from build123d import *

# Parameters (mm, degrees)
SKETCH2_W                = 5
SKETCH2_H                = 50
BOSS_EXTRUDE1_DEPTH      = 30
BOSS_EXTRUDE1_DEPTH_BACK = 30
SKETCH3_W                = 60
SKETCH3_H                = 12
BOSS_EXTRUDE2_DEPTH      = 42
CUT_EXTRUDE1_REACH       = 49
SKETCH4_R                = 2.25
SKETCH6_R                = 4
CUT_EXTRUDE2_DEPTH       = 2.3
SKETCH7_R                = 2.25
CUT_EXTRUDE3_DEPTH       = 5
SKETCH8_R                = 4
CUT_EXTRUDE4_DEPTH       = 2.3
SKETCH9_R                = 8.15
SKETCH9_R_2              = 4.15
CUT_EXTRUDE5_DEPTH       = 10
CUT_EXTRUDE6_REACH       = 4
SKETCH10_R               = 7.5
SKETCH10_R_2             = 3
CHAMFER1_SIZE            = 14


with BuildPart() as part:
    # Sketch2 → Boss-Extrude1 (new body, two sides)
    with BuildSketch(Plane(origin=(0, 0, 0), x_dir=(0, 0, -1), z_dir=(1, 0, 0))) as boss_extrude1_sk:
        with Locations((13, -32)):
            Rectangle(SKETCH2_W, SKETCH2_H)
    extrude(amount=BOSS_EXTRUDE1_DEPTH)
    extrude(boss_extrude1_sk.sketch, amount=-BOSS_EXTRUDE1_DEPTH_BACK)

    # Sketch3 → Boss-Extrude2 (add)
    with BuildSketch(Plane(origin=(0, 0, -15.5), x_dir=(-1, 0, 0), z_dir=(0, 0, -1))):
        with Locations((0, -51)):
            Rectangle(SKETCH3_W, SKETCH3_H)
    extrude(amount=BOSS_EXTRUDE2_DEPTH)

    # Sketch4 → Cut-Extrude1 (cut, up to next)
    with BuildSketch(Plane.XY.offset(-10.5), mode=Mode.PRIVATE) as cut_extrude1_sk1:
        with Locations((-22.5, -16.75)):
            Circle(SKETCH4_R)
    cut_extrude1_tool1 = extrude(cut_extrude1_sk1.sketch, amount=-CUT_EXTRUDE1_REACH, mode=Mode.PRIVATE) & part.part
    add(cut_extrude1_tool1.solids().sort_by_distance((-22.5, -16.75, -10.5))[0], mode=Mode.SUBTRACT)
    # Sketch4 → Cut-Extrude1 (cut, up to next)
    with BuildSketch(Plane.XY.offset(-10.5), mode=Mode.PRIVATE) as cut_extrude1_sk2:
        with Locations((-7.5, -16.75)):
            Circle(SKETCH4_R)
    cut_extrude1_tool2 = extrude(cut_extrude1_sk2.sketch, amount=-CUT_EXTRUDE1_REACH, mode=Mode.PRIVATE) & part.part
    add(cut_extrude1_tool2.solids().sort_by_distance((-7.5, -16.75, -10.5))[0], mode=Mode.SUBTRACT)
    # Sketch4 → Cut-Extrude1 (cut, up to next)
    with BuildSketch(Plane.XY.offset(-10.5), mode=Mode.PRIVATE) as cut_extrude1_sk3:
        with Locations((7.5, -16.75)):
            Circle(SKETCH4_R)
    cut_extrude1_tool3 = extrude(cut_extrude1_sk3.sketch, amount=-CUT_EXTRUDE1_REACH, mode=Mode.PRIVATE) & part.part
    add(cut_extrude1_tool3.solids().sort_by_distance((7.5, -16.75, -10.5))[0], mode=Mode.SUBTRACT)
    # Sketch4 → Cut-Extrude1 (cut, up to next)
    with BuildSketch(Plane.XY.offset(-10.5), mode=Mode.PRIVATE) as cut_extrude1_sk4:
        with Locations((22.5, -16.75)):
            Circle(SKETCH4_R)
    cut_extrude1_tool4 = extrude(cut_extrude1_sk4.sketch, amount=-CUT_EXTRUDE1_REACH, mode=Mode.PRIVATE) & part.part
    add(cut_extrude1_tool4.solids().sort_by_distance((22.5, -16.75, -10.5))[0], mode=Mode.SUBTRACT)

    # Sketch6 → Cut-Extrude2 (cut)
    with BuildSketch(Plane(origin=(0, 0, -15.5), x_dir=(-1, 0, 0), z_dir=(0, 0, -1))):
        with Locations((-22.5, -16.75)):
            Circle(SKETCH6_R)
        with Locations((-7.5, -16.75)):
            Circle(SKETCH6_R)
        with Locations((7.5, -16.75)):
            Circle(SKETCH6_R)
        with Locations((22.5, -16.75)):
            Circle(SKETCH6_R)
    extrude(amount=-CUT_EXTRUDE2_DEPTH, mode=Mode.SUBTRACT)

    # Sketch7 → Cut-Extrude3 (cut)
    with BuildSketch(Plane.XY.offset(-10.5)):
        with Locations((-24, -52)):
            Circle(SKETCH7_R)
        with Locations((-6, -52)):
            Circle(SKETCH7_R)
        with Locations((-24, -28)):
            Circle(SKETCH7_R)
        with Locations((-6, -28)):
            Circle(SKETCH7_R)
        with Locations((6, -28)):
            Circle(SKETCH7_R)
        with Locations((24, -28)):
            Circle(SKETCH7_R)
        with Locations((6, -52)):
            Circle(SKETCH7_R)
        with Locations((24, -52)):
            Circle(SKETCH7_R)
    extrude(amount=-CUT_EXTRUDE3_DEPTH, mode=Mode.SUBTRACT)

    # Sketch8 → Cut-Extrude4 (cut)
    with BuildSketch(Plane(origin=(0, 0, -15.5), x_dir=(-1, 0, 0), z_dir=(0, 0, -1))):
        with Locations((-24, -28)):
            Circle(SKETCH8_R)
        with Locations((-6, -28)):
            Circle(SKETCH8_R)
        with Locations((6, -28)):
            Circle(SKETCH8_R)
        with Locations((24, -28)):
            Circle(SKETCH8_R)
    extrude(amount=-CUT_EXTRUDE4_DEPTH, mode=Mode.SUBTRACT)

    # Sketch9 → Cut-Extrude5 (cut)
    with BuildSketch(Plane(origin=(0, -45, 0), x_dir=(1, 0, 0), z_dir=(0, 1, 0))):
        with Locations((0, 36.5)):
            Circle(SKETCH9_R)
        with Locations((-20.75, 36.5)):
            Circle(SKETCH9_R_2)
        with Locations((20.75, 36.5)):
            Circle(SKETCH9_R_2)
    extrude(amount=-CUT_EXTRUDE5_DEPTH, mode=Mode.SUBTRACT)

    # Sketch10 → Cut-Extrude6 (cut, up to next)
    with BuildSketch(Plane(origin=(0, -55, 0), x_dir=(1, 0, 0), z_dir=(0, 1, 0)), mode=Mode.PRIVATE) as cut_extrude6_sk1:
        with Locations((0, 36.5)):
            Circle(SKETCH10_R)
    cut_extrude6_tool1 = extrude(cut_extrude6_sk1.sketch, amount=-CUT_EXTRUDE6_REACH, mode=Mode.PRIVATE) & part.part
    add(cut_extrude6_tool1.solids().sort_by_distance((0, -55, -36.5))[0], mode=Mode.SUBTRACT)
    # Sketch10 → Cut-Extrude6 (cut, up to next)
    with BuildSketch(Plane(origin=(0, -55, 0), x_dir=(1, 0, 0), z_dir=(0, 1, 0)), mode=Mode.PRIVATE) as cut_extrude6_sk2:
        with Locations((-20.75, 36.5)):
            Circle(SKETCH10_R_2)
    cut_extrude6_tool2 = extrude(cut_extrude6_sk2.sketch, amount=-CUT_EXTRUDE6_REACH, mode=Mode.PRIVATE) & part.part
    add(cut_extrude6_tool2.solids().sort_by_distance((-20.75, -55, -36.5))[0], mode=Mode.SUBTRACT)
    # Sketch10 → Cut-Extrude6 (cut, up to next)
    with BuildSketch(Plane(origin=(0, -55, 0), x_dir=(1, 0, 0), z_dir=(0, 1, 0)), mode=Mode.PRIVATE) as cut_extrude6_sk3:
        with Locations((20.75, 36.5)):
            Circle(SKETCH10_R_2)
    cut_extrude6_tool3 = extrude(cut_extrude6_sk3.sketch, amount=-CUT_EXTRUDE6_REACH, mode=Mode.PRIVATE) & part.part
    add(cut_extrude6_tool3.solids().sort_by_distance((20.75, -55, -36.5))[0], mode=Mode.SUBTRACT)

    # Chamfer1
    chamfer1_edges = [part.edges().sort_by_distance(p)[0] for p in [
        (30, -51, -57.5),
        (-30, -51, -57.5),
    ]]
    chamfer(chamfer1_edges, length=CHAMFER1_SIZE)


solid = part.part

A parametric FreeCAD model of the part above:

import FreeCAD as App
import Part
import Sketcher


def edges_at(feature, points):
    """Names of the edges that pass closest to the given points."""
    edges = feature.Shape.Edges
    near = lambda p: min(range(len(edges)), key=lambda i: edges[i].distToShape(Part.Vertex(*p))[0])
    return sorted({f"Edge{near(p) + 1}" for p in points})


def add_polygon(sketch, points):
    """Adds a closed chain of lines whose ends are joined by coincident constraints."""
    first, n = sketch.GeometryCount, len(points)
    for a, b in zip(points, points[1:] + points[:1]):
        sketch.addGeometry(Part.LineSegment(App.Vector(*a, 0), App.Vector(*b, 0)), False)
    for i in range(n):
        sketch.addConstraint(Sketcher.Constraint("Coincident", first + i, 2, first + (i + 1) % n, 1))

doc = App.newDocument("Part")
body = doc.addObject("PartDesign::Body", "Body")

sketch1 = body.newObject("Sketcher::SketchObject", "Sketch")
sketch1.AttachmentSupport = (doc.getObject("YZ_Plane"), [""])
sketch1.MapMode = "FlatFace"
add_polygon(sketch1, [(-7, -10), (-57, -10), (-57, -16), (-7, -16)])
sketch1.addConstraint(Sketcher.Constraint("Horizontal", 0))
sketch1.addConstraint(Sketcher.Constraint("Vertical", 1))
sketch1.addConstraint(Sketcher.Constraint("Horizontal", 2))
sketch1.addConstraint(Sketcher.Constraint("Vertical", 3))
sketch1.addConstraint(Sketcher.Constraint("DistanceX", 0, 2, 0, 1, 50.0))
sketch1.addConstraint(Sketcher.Constraint("DistanceY", 1, 2, 1, 1, 5.0))
sketch1.addConstraint(Sketcher.Constraint("DistanceX", 0, 2, -1, 1, 57.0))
sketch1.addConstraint(Sketcher.Constraint("DistanceY", 0, 2, -1, 1, 10.5))
pad1 = body.newObject("PartDesign::Pad", "Pad")
pad1.Profile = sketch1
pad1.Type = "TwoLengths"
pad1.Length = 30
pad1.Length2 = 30

sketch2 = body.newObject("Sketcher::SketchObject", "Sketch001")
sketch2.AttachmentSupport = (doc.getObject("XY_Plane"), [""])
sketch2.MapMode = "FlatFace"
sketch2.AttachmentOffset = App.Placement(App.Vector(0, 0, -15.5), App.Rotation())
add_polygon(sketch2, [(30, -45), (30, -57), (-30, -57), (-30, -45)])
sketch2.addConstraint(Sketcher.Constraint("Vertical", 0))
sketch2.addConstraint(Sketcher.Constraint("Horizontal", 1))
sketch2.addConstraint(Sketcher.Constraint("Vertical", 2))
sketch2.addConstraint(Sketcher.Constraint("Horizontal", 3))
sketch2.addConstraint(Sketcher.Constraint("DistanceX", 1, 2, 1, 1, 60.0))
sketch2.addConstraint(Sketcher.Constraint("DistanceY", 0, 2, 0, 1, 12.0))
sketch2.addConstraint(Sketcher.Constraint("DistanceX", -1, 1, 0, 2, 30.0))
sketch2.addConstraint(Sketcher.Constraint("DistanceY", 0, 2, -1, 1, 57.0))
pad2 = body.newObject("PartDesign::Pad", "Pad001")
pad2.Profile = sketch2
pad2.Length = 42
pad2.Reversed = True

sketch3 = body.newObject("Sketcher::SketchObject", "Sketch002")
sketch3.AttachmentSupport = (doc.getObject("XY_Plane"), [""])
sketch3.MapMode = "FlatFace"
sketch3.AttachmentOffset = App.Placement(App.Vector(0, 0, -10.5), App.Rotation())
sketch3.addGeometry(Part.Circle(App.Vector(-22.5, -16.8, 0), App.Vector(0, 0, 1), 2.2), False)
sketch3.addConstraint(Sketcher.Constraint("Diameter", 0, 4.5))
sketch3.addConstraint(Sketcher.Constraint("DistanceX", 0, 3, -1, 1, 22.5))
sketch3.addConstraint(Sketcher.Constraint("DistanceY", 0, 3, -1, 1, 16.75))
pocket1 = body.newObject("PartDesign::Pocket", "Pocket")
pocket1.Profile = sketch3
pocket1.Type = "UpToFirst"

sketch4 = body.newObject("Sketcher::SketchObject", "Sketch003")
sketch4.AttachmentSupport = (doc.getObject("XY_Plane"), [""])
sketch4.MapMode = "FlatFace"
sketch4.AttachmentOffset = App.Placement(App.Vector(0, 0, -10.5), App.Rotation())
sketch4.addGeometry(Part.Circle(App.Vector(-7.5, -16.8, 0), App.Vector(0, 0, 1), 2.2), False)
sketch4.addConstraint(Sketcher.Constraint("Diameter", 0, 4.5))
sketch4.addConstraint(Sketcher.Constraint("DistanceX", 0, 3, -1, 1, 7.5))
sketch4.addConstraint(Sketcher.Constraint("DistanceY", 0, 3, -1, 1, 16.75))
pocket2 = body.newObject("PartDesign::Pocket", "Pocket001")
pocket2.Profile = sketch4
pocket2.Type = "UpToFirst"

sketch5 = body.newObject("Sketcher::SketchObject", "Sketch004")
sketch5.AttachmentSupport = (doc.getObject("XY_Plane"), [""])
sketch5.MapMode = "FlatFace"
sketch5.AttachmentOffset = App.Placement(App.Vector(0, 0, -10.5), App.Rotation())
sketch5.addGeometry(Part.Circle(App.Vector(7.5, -16.8, 0), App.Vector(0, 0, 1), 2.2), False)
sketch5.addConstraint(Sketcher.Constraint("Diameter", 0, 4.5))
sketch5.addConstraint(Sketcher.Constraint("DistanceX", -1, 1, 0, 3, 7.5))
sketch5.addConstraint(Sketcher.Constraint("DistanceY", 0, 3, -1, 1, 16.75))
pocket3 = body.newObject("PartDesign::Pocket", "Pocket002")
pocket3.Profile = sketch5
pocket3.Type = "UpToFirst"

sketch6 = body.newObject("Sketcher::SketchObject", "Sketch005")
sketch6.AttachmentSupport = (doc.getObject("XY_Plane"), [""])
sketch6.MapMode = "FlatFace"
sketch6.AttachmentOffset = App.Placement(App.Vector(0, 0, -10.5), App.Rotation())
sketch6.addGeometry(Part.Circle(App.Vector(22.5, -16.8, 0), App.Vector(0, 0, 1), 2.2), False)
sketch6.addConstraint(Sketcher.Constraint("Diameter", 0, 4.5))
sketch6.addConstraint(Sketcher.Constraint("DistanceX", -1, 1, 0, 3, 22.5))
sketch6.addConstraint(Sketcher.Constraint("DistanceY", 0, 3, -1, 1, 16.75))
pocket4 = body.newObject("PartDesign::Pocket", "Pocket003")
pocket4.Profile = sketch6
pocket4.Type = "UpToFirst"

sketch7 = body.newObject("Sketcher::SketchObject", "Sketch006")
sketch7.AttachmentSupport = (doc.getObject("XY_Plane"), [""])
sketch7.MapMode = "FlatFace"
sketch7.AttachmentOffset = App.Placement(App.Vector(0, 0, -15.5), App.Rotation())
sketch7.addGeometry(Part.Circle(App.Vector(22.5, -16.8, 0), App.Vector(0, 0, 1), 4), False)
sketch7.addGeometry(Part.Circle(App.Vector(7.5, -16.8, 0), App.Vector(0, 0, 1), 4), False)
sketch7.addGeometry(Part.Circle(App.Vector(-7.5, -16.8, 0), App.Vector(0, 0, 1), 4), False)
sketch7.addGeometry(Part.Circle(App.Vector(-22.5, -16.8, 0), App.Vector(0, 0, 1), 4), False)
sketch7.addConstraint(Sketcher.Constraint("Equal", 0, 1))
sketch7.addConstraint(Sketcher.Constraint("Equal", 1, 2))
sketch7.addConstraint(Sketcher.Constraint("Equal", 2, 3))
sketch7.addConstraint(Sketcher.Constraint("Symmetric", 1, 3, 2, 3, -2))
sketch7.addConstraint(Sketcher.Constraint("Symmetric", 0, 3, 3, 3, -2))
sketch7.addConstraint(Sketcher.Constraint("Horizontal", 0, 3, 1, 3))
sketch7.addConstraint(Sketcher.Constraint("Diameter", 0, 8.0))
sketch7.addConstraint(Sketcher.Constraint("DistanceX", 1, 3, 0, 3, 15.0))
sketch7.addConstraint(Sketcher.Constraint("DistanceX", 2, 3, 1, 3, 15.0))
sketch7.addConstraint(Sketcher.Constraint("DistanceY", 0, 3, -1, 1, 16.75))
pocket5 = body.newObject("PartDesign::Pocket", "Pocket004")
pocket5.Profile = sketch7
pocket5.Length = 2.3
pocket5.Reversed = True

sketch8 = body.newObject("Sketcher::SketchObject", "Sketch007")
sketch8.AttachmentSupport = (doc.getObject("XY_Plane"), [""])
sketch8.MapMode = "FlatFace"
sketch8.AttachmentOffset = App.Placement(App.Vector(0, 0, -10.5), App.Rotation())
sketch8.addGeometry(Part.Circle(App.Vector(-24, -52, 0), App.Vector(0, 0, 1), 2.2), False)
sketch8.addGeometry(Part.Circle(App.Vector(-6, -52, 0), App.Vector(0, 0, 1), 2.2), False)
sketch8.addGeometry(Part.Circle(App.Vector(-24, -28, 0), App.Vector(0, 0, 1), 2.2), False)
sketch8.addGeometry(Part.Circle(App.Vector(-6, -28, 0), App.Vector(0, 0, 1), 2.2), False)
sketch8.addGeometry(Part.Circle(App.Vector(6, -28, 0), App.Vector(0, 0, 1), 2.2), False)
sketch8.addGeometry(Part.Circle(App.Vector(24, -28, 0), App.Vector(0, 0, 1), 2.2), False)
sketch8.addGeometry(Part.Circle(App.Vector(6, -52, 0), App.Vector(0, 0, 1), 2.2), False)
sketch8.addGeometry(Part.Circle(App.Vector(24, -52, 0), App.Vector(0, 0, 1), 2.2), False)
sketch8.addConstraint(Sketcher.Constraint("Equal", 0, 1))
sketch8.addConstraint(Sketcher.Constraint("Equal", 1, 2))
sketch8.addConstraint(Sketcher.Constraint("Equal", 2, 3))
sketch8.addConstraint(Sketcher.Constraint("Equal", 3, 4))
sketch8.addConstraint(Sketcher.Constraint("Equal", 4, 5))
sketch8.addConstraint(Sketcher.Constraint("Equal", 5, 6))
sketch8.addConstraint(Sketcher.Constraint("Equal", 6, 7))
sketch8.addConstraint(Sketcher.Constraint("Symmetric", 3, 3, 4, 3, -2))
sketch8.addConstraint(Sketcher.Constraint("Symmetric", 2, 3, 5, 3, -2))
sketch8.addConstraint(Sketcher.Constraint("Symmetric", 1, 3, 6, 3, -2))
sketch8.addConstraint(Sketcher.Constraint("Symmetric", 0, 3, 7, 3, -2))
sketch8.addConstraint(Sketcher.Constraint("Horizontal", 0, 3, 1, 3))
sketch8.addConstraint(Sketcher.Constraint("Horizontal", 2, 3, 3, 3))
sketch8.addConstraint(Sketcher.Constraint("Vertical", 0, 3, 2, 3))
sketch8.addConstraint(Sketcher.Constraint("Vertical", 1, 3, 3, 3))
sketch8.addConstraint(Sketcher.Constraint("Diameter", 0, 4.5))
sketch8.addConstraint(Sketcher.Constraint("DistanceX", 0, 3, -1, 1, 24.0))
sketch8.addConstraint(Sketcher.Constraint("DistanceY", 0, 3, -1, 1, 52.0))
sketch8.addConstraint(Sketcher.Constraint("DistanceX", 1, 3, -1, 1, 6.0))
sketch8.addConstraint(Sketcher.Constraint("DistanceY", 2, 3, -1, 1, 28.0))
pocket6 = body.newObject("PartDesign::Pocket", "Pocket005")
pocket6.Profile = sketch8
pocket6.Length = 5

sketch9 = body.newObject("Sketcher::SketchObject", "Sketch008")
sketch9.AttachmentSupport = (doc.getObject("XY_Plane"), [""])
sketch9.MapMode = "FlatFace"
sketch9.AttachmentOffset = App.Placement(App.Vector(0, 0, -15.5), App.Rotation())
sketch9.addGeometry(Part.Circle(App.Vector(24, -28, 0), App.Vector(0, 0, 1), 4), False)
sketch9.addGeometry(Part.Circle(App.Vector(6, -28, 0), App.Vector(0, 0, 1), 4), False)
sketch9.addGeometry(Part.Circle(App.Vector(-6, -28, 0), App.Vector(0, 0, 1), 4), False)
sketch9.addGeometry(Part.Circle(App.Vector(-24, -28, 0), App.Vector(0, 0, 1), 4), False)
sketch9.addConstraint(Sketcher.Constraint("Equal", 0, 1))
sketch9.addConstraint(Sketcher.Constraint("Equal", 1, 2))
sketch9.addConstraint(Sketcher.Constraint("Equal", 2, 3))
sketch9.addConstraint(Sketcher.Constraint("Symmetric", 1, 3, 2, 3, -2))
sketch9.addConstraint(Sketcher.Constraint("Symmetric", 0, 3, 3, 3, -2))
sketch9.addConstraint(Sketcher.Constraint("Horizontal", 0, 3, 1, 3))
sketch9.addConstraint(Sketcher.Constraint("Diameter", 0, 8.0))
sketch9.addConstraint(Sketcher.Constraint("DistanceX", -1, 1, 0, 3, 24.0))
sketch9.addConstraint(Sketcher.Constraint("DistanceY", 0, 3, -1, 1, 28.0))
sketch9.addConstraint(Sketcher.Constraint("DistanceX", -1, 1, 1, 3, 6.0))
pocket7 = body.newObject("PartDesign::Pocket", "Pocket006")
pocket7.Profile = sketch9
pocket7.Length = 2.3
pocket7.Reversed = True

sketch10 = body.newObject("Sketcher::SketchObject", "Sketch009")
sketch10.AttachmentSupport = (doc.getObject("XZ_Plane"), [""])
sketch10.MapMode = "FlatFace"
sketch10.AttachmentOffset = App.Placement(App.Vector(0, 0, 45), App.Rotation())
sketch10.addGeometry(Part.Circle(App.Vector(0, -36.5, 0), App.Vector(0, 0, 1), 8.2), False)
sketch10.addGeometry(Part.Circle(App.Vector(-20.8, -36.5, 0), App.Vector(0, 0, 1), 4.2), False)
sketch10.addGeometry(Part.Circle(App.Vector(20.8, -36.5, 0), App.Vector(0, 0, 1), 4.2), False)
sketch10.addConstraint(Sketcher.Constraint("Equal", 1, 2))
sketch10.addConstraint(Sketcher.Constraint("Symmetric", 1, 3, 2, 3, -2))
sketch10.addConstraint(Sketcher.Constraint("PointOnObject", 0, 3, -2))
sketch10.addConstraint(Sketcher.Constraint("Horizontal", 0, 3, 1, 3))
sketch10.addConstraint(Sketcher.Constraint("Diameter", 0, 16.3))
sketch10.addConstraint(Sketcher.Constraint("Diameter", 1, 8.3))
sketch10.addConstraint(Sketcher.Constraint("DistanceY", 0, 3, -1, 1, 36.5))
sketch10.addConstraint(Sketcher.Constraint("DistanceX", 1, 3, 2, 3, 41.5))
pocket8 = body.newObject("PartDesign::Pocket", "Pocket007")
pocket8.Profile = sketch10
pocket8.Length = 10
pocket8.Reversed = True

sketch11 = body.newObject("Sketcher::SketchObject", "Sketch010")
sketch11.AttachmentSupport = (doc.getObject("XZ_Plane"), [""])
sketch11.MapMode = "FlatFace"
sketch11.AttachmentOffset = App.Placement(App.Vector(0, 0, 55), App.Rotation())
sketch11.addGeometry(Part.Circle(App.Vector(0, -36, 0), App.Vector(0, 0, 1), 8), False)
sketch11.addConstraint(Sketcher.Constraint("PointOnObject", 0, 3, -2))
sketch11.addConstraint(Sketcher.Constraint("Diameter", 0, 15.0))
sketch11.addConstraint(Sketcher.Constraint("DistanceY", 0, 3, -1, 1, 36.5))
pocket9 = body.newObject("PartDesign::Pocket", "Pocket008")
pocket9.Profile = sketch11
pocket9.Type = "UpToFirst"
pocket9.Reversed = True

sketch12 = body.newObject("Sketcher::SketchObject", "Sketch011")
sketch12.AttachmentSupport = (doc.getObject("XZ_Plane"), [""])
sketch12.MapMode = "FlatFace"
sketch12.AttachmentOffset = App.Placement(App.Vector(0, 0, 55), App.Rotation())
sketch12.addGeometry(Part.Circle(App.Vector(-20.8, -36.5, 0), App.Vector(0, 0, 1), 3), False)
sketch12.addConstraint(Sketcher.Constraint("Diameter", 0, 6.0))
sketch12.addConstraint(Sketcher.Constraint("DistanceY", 0, 3, -1, 1, 36.5))
sketch12.addConstraint(Sketcher.Constraint("DistanceX", 0, 3, -1, 1, 20.75))
pocket10 = body.newObject("PartDesign::Pocket", "Pocket009")
pocket10.Profile = sketch12
pocket10.Type = "UpToFirst"
pocket10.Reversed = True

sketch13 = body.newObject("Sketcher::SketchObject", "Sketch012")
sketch13.AttachmentSupport = (doc.getObject("XZ_Plane"), [""])
sketch13.MapMode = "FlatFace"
sketch13.AttachmentOffset = App.Placement(App.Vector(0, 0, 55), App.Rotation())
sketch13.addGeometry(Part.Circle(App.Vector(20.8, -36.5, 0), App.Vector(0, 0, 1), 3), False)
sketch13.addConstraint(Sketcher.Constraint("Diameter", 0, 6.0))
sketch13.addConstraint(Sketcher.Constraint("DistanceY", 0, 3, -1, 1, 36.5))
sketch13.addConstraint(Sketcher.Constraint("DistanceX", -1, 1, 0, 3, 20.75))
pocket11 = body.newObject("PartDesign::Pocket", "Pocket010")
pocket11.Profile = sketch13
pocket11.Type = "UpToFirst"
pocket11.Reversed = True
doc.recompute()

chamfer = body.newObject("PartDesign::Chamfer", "Chamfer")
chamfer.Base = (pocket11, edges_at(pocket11, [(30, -51, -57.5), (-30, -51, -57.5)]))
chamfer.Size = 14

doc.recompute()
